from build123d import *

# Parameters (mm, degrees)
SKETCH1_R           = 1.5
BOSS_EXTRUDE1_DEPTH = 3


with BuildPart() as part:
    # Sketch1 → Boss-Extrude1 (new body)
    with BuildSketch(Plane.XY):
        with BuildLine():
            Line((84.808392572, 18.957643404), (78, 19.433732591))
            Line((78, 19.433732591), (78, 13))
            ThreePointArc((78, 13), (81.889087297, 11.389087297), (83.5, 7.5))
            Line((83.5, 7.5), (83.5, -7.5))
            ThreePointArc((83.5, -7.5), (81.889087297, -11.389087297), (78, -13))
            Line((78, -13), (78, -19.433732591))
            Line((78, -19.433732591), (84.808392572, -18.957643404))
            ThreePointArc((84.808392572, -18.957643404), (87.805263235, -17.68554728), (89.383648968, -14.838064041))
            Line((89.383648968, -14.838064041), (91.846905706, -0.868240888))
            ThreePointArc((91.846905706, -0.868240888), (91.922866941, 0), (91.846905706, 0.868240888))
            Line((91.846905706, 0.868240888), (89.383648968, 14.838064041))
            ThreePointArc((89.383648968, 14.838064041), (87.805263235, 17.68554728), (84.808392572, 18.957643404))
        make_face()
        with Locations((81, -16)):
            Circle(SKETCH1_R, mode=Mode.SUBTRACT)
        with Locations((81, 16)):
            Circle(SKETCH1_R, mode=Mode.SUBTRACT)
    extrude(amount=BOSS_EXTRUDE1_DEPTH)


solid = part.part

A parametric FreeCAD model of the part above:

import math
import FreeCAD as App
import Part
import Sketcher
Q = App.Units.Quantity

doc = App.newDocument("Part")
body = doc.addObject("PartDesign::Body", "Body")

sketch1 = body.newObject("Sketcher::SketchObject", "Sketch")
sketch1.AttachmentSupport = (doc.getObject("XY_Plane"), [""])
sketch1.MapMode = "FlatFace"
sketch1.addGeometry(Part.LineSegment(App.Vector(84.8, 19, 0), App.Vector(78, 19.4, 0)), False)
sketch1.addGeometry(Part.LineSegment(App.Vector(78, 19.4, 0), App.Vector(78, 13, 0)), False)
sketch1.addGeometry(Part.ArcOfCircle(Part.Circle(App.Vector(78, 7.5, 0), App.Vector(0, 0, 1), 5.5), math.radians(0), math.radians(90)), False)
sketch1.addGeometry(Part.LineSegment(App.Vector(83.5, 7.5, 0), App.Vector(83.5, -7.5, 0)), False)
sketch1.addGeometry(Part.ArcOfCircle(Part.Circle(App.Vector(78, -7.5, 0), App.Vector(0, 0, 1), 5.5), math.radians(-90), math.radians(0)), False)
sketch1.addGeometry(Part.LineSegment(App.Vector(78, -13, 0), App.Vector(78, -19.4, 0)), False)
sketch1.addGeometry(Part.LineSegment(App.Vector(78, -19.4, 0), App.Vector(84.8, -19, 0)), False)
sketch1.addGeometry(Part.ArcOfCircle(Part.Circle(App.Vector(84.5, -14, 0), App.Vector(0, 0, 1), 5), math.radians(-86), math.radians(-10)), False)
sketch1.addGeometry(Part.LineSegment(App.Vector(89.4, -14.8, 0), App.Vector(91.8, -0.9, 0)), False)
sketch1.addGeometry(Part.ArcOfCircle(Part.Circle(App.Vector(86.9, 0, 0), App.Vector(0, 0, 1), 5), math.radians(-10), math.radians(10)), False)
sketch1.addGeometry(Part.LineSegment(App.Vector(91.8, 0.9, 0), App.Vector(89.4, 14.8, 0)), False)
sketch1.addGeometry(Part.ArcOfCircle(Part.Circle(App.Vector(84.5, 14, 0), App.Vector(0, 0, 1), 5), math.radians(10), math.radians(86)), False)
sketch1.addGeometry(Part.Circle(App.Vector(81, -16, 0), App.Vector(0, 0, 1), 1.5), False)
sketch1.addGeometry(Part.Circle(App.Vector(81, 16, 0), App.Vector(0, 0, 1), 1.5), False)
sketch1.addConstraint(Sketcher.Constraint("Coincident", 0, 2, 1, 1))
sketch1.addConstraint(Sketcher.Constraint("Coincident", 1, 2, 2, 2))
sketch1.addConstraint(Sketcher.Constraint("Tangent", 2, 1, 3, 1))
sketch1.addConstraint(Sketcher.Constraint("Tangent", 3, 2, 4, 2))
sketch1.addConstraint(Sketcher.Constraint("Coincident", 4, 1, 5, 1))
sketch1.addConstraint(Sketcher.Constraint("Coincident", 5, 2, 6, 1))
sketch1.addConstraint(Sketcher.Constraint("Tangent", 6, 2, 7, 1))
sketch1.addConstraint(Sketcher.Constraint("Tangent", 7, 2, 8, 1))
sketch1.addConstraint(Sketcher.Constraint("Tangent", 8, 2, 9, 1))
sketch1.addConstraint(Sketcher.Constraint("Tangent", 9, 2, 10, 1))
sketch1.addConstraint(Sketcher.Constraint("Tangent", 10, 2, 11, 1))
sketch1.addConstraint(Sketcher.Constraint("Tangent", 11, 2, 0, 1))
sketch1.addConstraint(Sketcher.Constraint("Vertical", 1))
sketch1.addConstraint(Sketcher.Constraint("Vertical", 3))
sketch1.addConstraint(Sketcher.Constraint("Vertical", 5))
sketch1.addConstraint(Sketcher.Constraint("Equal", 2, 4))
sketch1.addConstraint(Sketcher.Constraint("Equal", 7, 9))
sketch1.addConstraint(Sketcher.Constraint("Equal", 9, 11))
sketch1.addConstraint(Sketcher.Constraint("Equal", 12, 13))
sketch1.addConstraint(Sketcher.Constraint("Symmetric", 7, 3, 11, 3, -1))
sketch1.addConstraint(Sketcher.Constraint("Symmetric", 12, 3, 13, 3, -1))
sketch1.addConstraint(Sketcher.Constraint("Symmetric", 1, 2, 4, 1, -1))
sketch1.addConstraint(Sketcher.Constraint("PointOnObject", 9, 3, -1))
sketch1.addConstraint(Sketcher.Constraint("Vertical", 4, 3, 0, 2))
sketch1.addConstraint(Sketcher.Constraint("Vertical", 6, 2, 11, 2))
sketch1.addConstraint(Sketcher.Constraint("Diameter", 12, 3.0))
sketch1.addConstraint(Sketcher.Constraint("Radius", 7, 5.0))
sketch1.addConstraint(Sketcher.Constraint("Radius", 2, 5.5))
sketch1.addConstraint(Sketcher.Constraint("DistanceY", 3, 2, 3, 1, 15.0))
sketch1.addConstraint(Sketcher.Constraint("Angle", 0, Q("176 deg")))
sketch1.addConstraint(Sketcher.Constraint("Angle", 8, Q("80 deg")))
sketch1.addConstraint(Sketcher.Constraint("DistanceX", -1, 1, 2, 3, 78.0))
sketch1.addConstraint(Sketcher.Constraint("DistanceX", -1, 1, 12, 3, 81.0))
sketch1.addConstraint(Sketcher.Constraint("DistanceY", 12, 3, -1, 1, 16.0))
sketch1.addConstraint(Sketcher.Constraint("Distance", 8, 14.18533))
sketch1.addConstraint(Sketcher.Constraint("DistanceY", 1, 2, 1, 1, 6.433733))
pad1 = body.newObject("PartDesign::Pad", "Pad")
pad1.Profile = sketch1
pad1.Length = 3

doc.recompute()
